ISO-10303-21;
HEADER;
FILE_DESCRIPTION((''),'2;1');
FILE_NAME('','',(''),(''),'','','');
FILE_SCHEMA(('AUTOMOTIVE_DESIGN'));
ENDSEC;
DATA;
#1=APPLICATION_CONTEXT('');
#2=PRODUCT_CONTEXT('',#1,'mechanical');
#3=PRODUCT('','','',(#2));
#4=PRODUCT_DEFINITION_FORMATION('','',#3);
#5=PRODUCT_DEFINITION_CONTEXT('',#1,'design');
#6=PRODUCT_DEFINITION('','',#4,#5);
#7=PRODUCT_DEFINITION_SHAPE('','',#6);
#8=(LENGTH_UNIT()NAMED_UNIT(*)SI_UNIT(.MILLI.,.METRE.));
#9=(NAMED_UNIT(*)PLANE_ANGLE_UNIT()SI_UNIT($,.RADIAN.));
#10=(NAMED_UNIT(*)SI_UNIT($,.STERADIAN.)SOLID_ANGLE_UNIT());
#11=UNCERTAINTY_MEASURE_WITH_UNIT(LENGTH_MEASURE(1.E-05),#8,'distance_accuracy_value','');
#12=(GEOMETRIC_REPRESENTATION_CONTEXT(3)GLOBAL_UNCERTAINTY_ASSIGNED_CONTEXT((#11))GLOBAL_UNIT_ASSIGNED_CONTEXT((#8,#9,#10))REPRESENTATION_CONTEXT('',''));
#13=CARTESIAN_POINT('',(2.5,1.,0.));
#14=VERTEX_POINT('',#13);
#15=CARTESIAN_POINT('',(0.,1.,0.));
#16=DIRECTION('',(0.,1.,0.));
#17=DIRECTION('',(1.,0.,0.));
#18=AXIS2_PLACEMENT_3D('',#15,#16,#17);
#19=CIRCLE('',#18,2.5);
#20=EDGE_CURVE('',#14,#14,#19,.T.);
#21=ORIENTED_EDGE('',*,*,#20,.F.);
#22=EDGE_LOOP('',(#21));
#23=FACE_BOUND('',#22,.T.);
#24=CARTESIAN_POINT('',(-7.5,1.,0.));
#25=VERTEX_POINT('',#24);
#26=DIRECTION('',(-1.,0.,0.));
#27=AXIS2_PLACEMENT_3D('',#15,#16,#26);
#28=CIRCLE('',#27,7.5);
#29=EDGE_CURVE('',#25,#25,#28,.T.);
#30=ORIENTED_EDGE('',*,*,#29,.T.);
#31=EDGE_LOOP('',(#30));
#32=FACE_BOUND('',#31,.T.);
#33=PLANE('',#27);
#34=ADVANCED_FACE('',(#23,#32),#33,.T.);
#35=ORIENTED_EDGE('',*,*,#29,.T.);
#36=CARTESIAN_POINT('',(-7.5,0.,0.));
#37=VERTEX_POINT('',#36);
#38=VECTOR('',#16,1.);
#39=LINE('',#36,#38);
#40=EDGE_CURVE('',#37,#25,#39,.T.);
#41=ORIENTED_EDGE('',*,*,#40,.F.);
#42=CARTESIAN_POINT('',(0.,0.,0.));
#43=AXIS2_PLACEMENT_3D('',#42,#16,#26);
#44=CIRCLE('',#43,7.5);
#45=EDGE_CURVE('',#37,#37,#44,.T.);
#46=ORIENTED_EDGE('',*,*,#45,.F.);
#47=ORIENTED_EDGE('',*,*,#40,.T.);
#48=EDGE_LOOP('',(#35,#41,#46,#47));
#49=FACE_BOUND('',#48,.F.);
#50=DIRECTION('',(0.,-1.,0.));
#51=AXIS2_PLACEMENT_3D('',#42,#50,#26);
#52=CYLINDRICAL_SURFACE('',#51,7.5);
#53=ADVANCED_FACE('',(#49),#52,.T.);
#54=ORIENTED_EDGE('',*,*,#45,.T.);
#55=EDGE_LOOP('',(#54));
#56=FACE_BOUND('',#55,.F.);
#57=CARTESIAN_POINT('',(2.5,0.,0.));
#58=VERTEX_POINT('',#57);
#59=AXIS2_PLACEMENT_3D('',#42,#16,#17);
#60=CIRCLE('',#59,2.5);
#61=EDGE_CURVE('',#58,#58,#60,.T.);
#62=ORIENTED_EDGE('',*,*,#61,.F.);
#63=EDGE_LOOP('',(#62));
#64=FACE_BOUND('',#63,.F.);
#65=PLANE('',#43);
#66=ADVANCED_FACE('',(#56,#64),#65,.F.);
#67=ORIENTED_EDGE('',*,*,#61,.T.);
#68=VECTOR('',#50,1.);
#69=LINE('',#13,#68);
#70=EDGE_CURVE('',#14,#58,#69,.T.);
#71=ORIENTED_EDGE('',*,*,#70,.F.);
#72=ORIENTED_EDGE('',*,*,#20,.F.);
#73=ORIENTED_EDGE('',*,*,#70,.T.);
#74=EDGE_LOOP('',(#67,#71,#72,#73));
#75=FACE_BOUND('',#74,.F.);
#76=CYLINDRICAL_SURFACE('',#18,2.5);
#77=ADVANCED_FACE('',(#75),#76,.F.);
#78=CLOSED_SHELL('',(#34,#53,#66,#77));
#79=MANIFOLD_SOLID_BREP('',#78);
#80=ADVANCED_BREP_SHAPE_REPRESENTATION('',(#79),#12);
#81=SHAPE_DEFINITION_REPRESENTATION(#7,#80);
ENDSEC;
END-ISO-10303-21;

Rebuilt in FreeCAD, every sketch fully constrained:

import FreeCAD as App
import Part
import Sketcher
from FreeCAD import Vector

doc = App.newDocument("Part")
body = doc.addObject("PartDesign::Body", "Body")

# Sketch on XZ plane
sketch1 = body.newObject("Sketcher::SketchObject", "Sketch")
sketch1.AttachmentSupport = (doc.getObject("XZ_Plane"), [""])
sketch1.MapMode = "FlatFace"
sketch1.addGeometry(Part.Circle(Vector(0, 0, 0), Vector(0, 0, 1), 7.5), False)
sketch1.addConstraint(Sketcher.Constraint("Coincident", 0, 3, -1, 1))
sketch1.addConstraint(Sketcher.Constraint("Diameter", 0, 15.0))
pad1 = body.newObject("PartDesign::Pad", "Pad")
pad1.Profile = sketch1
pad1.Length = 1
pad1.Reversed = True

# Sketch on XZ plane
sketch2 = body.newObject("Sketcher::SketchObject", "Sketch001")
sketch2.AttachmentSupport = (doc.getObject("XZ_Plane"), [""])
sketch2.MapMode = "FlatFace"
sketch2.AttachmentOffset = App.Placement(Vector(0, 0, -1), App.Rotation())
sketch2.addGeometry(Part.Circle(Vector(0, 0, 0), Vector(0, 0, 1), 2.5), False)
sketch2.addConstraint(Sketcher.Constraint("Coincident", 0, 3, -1, 1))
sketch2.addConstraint(Sketcher.Constraint("Diameter", 0, 5.0))
pocket1 = body.newObject("PartDesign::Pocket", "Pocket")
pocket1.Profile = sketch2
pocket1.Length = 1
pocket1.Reversed = True

doc.recompute()
